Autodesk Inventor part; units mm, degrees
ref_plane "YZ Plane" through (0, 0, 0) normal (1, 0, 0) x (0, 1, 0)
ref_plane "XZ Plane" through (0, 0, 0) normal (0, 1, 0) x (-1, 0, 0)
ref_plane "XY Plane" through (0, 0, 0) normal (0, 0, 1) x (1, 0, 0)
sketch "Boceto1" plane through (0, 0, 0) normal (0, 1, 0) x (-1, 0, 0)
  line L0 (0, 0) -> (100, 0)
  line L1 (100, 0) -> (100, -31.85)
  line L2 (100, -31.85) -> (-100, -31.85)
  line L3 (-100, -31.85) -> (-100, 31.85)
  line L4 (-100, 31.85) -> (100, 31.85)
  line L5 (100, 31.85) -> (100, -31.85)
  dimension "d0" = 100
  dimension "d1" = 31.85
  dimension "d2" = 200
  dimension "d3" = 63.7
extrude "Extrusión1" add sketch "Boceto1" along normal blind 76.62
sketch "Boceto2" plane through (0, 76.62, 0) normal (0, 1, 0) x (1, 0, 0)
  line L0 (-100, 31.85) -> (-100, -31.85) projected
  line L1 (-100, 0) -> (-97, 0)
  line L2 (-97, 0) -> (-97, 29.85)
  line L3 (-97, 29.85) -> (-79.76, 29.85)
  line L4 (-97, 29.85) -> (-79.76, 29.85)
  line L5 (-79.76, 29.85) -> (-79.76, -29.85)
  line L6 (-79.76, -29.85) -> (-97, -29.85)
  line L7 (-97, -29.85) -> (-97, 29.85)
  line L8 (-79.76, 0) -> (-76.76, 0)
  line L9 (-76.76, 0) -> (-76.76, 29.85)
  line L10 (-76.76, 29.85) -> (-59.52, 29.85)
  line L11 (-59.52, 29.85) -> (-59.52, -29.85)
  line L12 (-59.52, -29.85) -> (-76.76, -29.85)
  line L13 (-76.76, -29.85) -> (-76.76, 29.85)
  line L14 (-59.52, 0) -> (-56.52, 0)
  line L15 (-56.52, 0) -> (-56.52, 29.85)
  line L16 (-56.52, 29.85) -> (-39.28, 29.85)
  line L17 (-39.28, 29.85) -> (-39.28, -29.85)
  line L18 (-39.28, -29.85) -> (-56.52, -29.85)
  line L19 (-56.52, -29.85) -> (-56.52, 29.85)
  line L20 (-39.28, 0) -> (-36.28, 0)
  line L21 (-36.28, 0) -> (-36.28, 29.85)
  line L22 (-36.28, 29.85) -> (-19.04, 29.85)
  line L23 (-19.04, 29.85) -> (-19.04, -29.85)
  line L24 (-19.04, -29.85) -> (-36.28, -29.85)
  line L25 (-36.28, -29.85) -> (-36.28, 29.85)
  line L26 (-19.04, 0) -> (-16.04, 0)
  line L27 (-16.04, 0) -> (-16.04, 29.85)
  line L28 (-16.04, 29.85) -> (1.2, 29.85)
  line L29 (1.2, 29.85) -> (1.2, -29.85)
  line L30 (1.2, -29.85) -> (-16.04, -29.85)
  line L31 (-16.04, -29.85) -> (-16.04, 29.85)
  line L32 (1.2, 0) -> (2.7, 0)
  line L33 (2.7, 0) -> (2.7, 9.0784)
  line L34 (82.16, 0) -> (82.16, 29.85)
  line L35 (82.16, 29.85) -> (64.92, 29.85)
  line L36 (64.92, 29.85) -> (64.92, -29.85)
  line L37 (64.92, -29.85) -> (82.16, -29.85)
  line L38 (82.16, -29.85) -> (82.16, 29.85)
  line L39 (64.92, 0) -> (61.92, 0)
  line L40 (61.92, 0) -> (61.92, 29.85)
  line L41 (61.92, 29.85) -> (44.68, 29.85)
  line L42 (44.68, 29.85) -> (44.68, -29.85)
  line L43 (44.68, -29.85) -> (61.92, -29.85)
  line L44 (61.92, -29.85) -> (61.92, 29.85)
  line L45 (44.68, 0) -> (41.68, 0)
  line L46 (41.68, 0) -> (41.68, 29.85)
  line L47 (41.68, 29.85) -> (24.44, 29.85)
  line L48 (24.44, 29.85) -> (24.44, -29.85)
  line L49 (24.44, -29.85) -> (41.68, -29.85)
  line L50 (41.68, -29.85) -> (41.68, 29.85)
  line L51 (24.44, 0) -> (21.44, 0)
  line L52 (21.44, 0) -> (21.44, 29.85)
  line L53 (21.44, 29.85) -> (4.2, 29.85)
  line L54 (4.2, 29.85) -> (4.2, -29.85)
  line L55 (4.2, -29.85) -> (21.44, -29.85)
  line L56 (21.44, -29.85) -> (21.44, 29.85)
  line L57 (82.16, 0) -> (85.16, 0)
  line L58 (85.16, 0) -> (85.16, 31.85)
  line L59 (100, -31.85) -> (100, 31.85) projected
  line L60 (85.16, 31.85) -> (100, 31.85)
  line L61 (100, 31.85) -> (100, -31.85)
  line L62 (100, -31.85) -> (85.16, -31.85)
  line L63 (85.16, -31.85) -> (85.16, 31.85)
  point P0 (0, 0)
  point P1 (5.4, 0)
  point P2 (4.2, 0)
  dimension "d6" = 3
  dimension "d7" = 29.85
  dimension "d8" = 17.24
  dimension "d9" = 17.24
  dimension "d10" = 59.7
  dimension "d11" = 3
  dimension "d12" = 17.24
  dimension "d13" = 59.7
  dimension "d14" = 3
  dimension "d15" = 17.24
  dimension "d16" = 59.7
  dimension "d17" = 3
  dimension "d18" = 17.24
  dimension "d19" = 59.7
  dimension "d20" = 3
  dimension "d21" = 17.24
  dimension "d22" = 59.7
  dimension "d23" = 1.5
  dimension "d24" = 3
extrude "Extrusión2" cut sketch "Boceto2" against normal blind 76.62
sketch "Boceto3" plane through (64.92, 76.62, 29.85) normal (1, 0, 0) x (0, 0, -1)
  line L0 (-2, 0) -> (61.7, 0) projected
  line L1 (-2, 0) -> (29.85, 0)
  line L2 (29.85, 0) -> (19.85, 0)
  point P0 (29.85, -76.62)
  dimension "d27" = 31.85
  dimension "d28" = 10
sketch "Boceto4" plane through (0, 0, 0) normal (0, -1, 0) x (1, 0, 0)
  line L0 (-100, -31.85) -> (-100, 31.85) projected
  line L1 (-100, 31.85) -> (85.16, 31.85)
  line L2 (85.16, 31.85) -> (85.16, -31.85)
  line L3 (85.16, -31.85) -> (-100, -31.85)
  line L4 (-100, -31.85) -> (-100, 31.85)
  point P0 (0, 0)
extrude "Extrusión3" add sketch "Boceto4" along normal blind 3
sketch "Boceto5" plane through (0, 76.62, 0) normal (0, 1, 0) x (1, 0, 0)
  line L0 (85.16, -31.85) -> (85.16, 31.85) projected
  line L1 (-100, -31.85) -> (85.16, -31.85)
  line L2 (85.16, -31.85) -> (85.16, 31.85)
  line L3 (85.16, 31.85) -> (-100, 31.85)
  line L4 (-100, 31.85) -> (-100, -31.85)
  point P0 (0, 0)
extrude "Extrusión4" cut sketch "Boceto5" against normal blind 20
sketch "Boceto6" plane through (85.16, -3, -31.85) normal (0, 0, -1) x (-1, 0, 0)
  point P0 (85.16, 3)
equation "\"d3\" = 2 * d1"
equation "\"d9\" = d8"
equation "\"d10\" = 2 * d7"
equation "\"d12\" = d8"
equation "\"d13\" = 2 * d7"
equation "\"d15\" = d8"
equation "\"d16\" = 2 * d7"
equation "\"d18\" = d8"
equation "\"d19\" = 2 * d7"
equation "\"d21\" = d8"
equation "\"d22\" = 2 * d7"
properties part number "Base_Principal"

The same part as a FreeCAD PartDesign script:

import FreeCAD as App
import Part
import Sketcher
from FreeCAD import Vector
Q = App.Units.Quantity

doc = App.newDocument("Part")
body = doc.addObject("PartDesign::Body", "Body")

# Sketch on XZ plane
sketch1 = doc.addObject("Sketcher::SketchObject", "Sketch")
body.addObject(sketch1)
sketch1.AttachmentSupport = (doc.XZ_Plane, [""])
sketch1.MapMode = "FlatFace"
sketch1.addGeometry(Part.LineSegment(Vector(-100, -32, 0), Vector(-100, 32, 0)), False)
sketch1.addGeometry(Part.LineSegment(Vector(-100, 32, 0), Vector(100, 32, 0)), False)
sketch1.addGeometry(Part.LineSegment(Vector(100, 32, 0), Vector(100, -32, 0)), False)
sketch1.addGeometry(Part.LineSegment(Vector(100, -32, 0), Vector(-100, -32, 0)), False)
sketch1.addConstraint(Sketcher.Constraint("Coincident", 0, 2, 1, 1))
sketch1.addConstraint(Sketcher.Constraint("Coincident", 1, 2, 2, 1))
sketch1.addConstraint(Sketcher.Constraint("Coincident", 2, 2, 3, 1))
sketch1.addConstraint(Sketcher.Constraint("Coincident", 3, 2, 0, 1))
sketch1.addConstraint(Sketcher.Constraint("Vertical", 0))
sketch1.addConstraint(Sketcher.Constraint("Horizontal", 1))
sketch1.addConstraint(Sketcher.Constraint("Vertical", 2))
sketch1.addConstraint(Sketcher.Constraint("Horizontal", 3))
sketch1.addConstraint(Sketcher.Constraint("Symmetric", 0, 2, 2, 2, -1, 1))
sketch1.addConstraint(Sketcher.Constraint("DistanceX", 1, 1, 1, 2, Q("200 mm")))
sketch1.addConstraint(Sketcher.Constraint("DistanceY", 0, 1, 0, 2, Q("63.7 mm")))
pad1 = doc.addObject("PartDesign::Pad", "Pad")
body.addObject(pad1)
pad1.Profile = sketch1
pad1.Length = 76.62
pad1.Reversed = True

# Sketch on XZ plane
sketch2 = doc.addObject("Sketcher::SketchObject", "Sketch001")
body.addObject(sketch2)
sketch2.AttachmentSupport = (doc.XZ_Plane, [""])
sketch2.MapMode = "FlatFace"
sketch2.AttachmentOffset = App.Placement(Vector(0, 0, -76.62), App.Rotation())
sketch2.addGeometry(Part.LineSegment(Vector(-16, -30, 0), Vector(-16, 30, 0)), False)
sketch2.addGeometry(Part.LineSegment(Vector(-16, 30, 0), Vector(1, 30, 0)), False)
sketch2.addGeometry(Part.LineSegment(Vector(1, 30, 0), Vector(1, -30, 0)), False)
sketch2.addGeometry(Part.LineSegment(Vector(1, -30, 0), Vector(-16, -30, 0)), False)
sketch2.addGeometry(Part.LineSegment(Vector(-36, -30, 0), Vector(-36, 30, 0)), False)
sketch2.addGeometry(Part.LineSegment(Vector(-36, 30, 0), Vector(-19, 30, 0)), False)
sketch2.addGeometry(Part.LineSegment(Vector(-19, 30, 0), Vector(-19, -30, 0)), False)
sketch2.addGeometry(Part.LineSegment(Vector(-19, -30, 0), Vector(-36, -30, 0)), False)
sketch2.addGeometry(Part.LineSegment(Vector(-57, -30, 0), Vector(-57, 30, 0)), False)
sketch2.addGeometry(Part.LineSegment(Vector(-57, 30, 0), Vector(-39, 30, 0)), False)
sketch2.addGeometry(Part.LineSegment(Vector(-39, 30, 0), Vector(-39, -30, 0)), False)
sketch2.addGeometry(Part.LineSegment(Vector(-39, -30, 0), Vector(-57, -30, 0)), False)
sketch2.addGeometry(Part.LineSegment(Vector(-77, -30, 0), Vector(-77, 30, 0)), False)
sketch2.addGeometry(Part.LineSegment(Vector(-77, 30, 0), Vector(-60, 30, 0)), False)
sketch2.addGeometry(Part.LineSegment(Vector(-60, 30, 0), Vector(-60, -30, 0)), False)
sketch2.addGeometry(Part.LineSegment(Vector(-60, -30, 0), Vector(-77, -30, 0)), False)
sketch2.addGeometry(Part.LineSegment(Vector(-97, -30, 0), Vector(-97, 30, 0)), False)
sketch2.addGeometry(Part.LineSegment(Vector(-97, 30, 0), Vector(-80, 30, 0)), False)
sketch2.addGeometry(Part.LineSegment(Vector(-80, 30, 0), Vector(-80, -30, 0)), False)
sketch2.addGeometry(Part.LineSegment(Vector(-80, -30, 0), Vector(-97, -30, 0)), False)
sketch2.addGeometry(Part.LineSegment(Vector(82, 30, 0), Vector(82, -30, 0)), False)
sketch2.addGeometry(Part.LineSegment(Vector(82, -30, 0), Vector(65, -30, 0)), False)
sketch2.addGeometry(Part.LineSegment(Vector(65, -30, 0), Vector(65, 30, 0)), False)
sketch2.addGeometry(Part.LineSegment(Vector(65, 30, 0), Vector(82, 30, 0)), False)
sketch2.addGeometry(Part.LineSegment(Vector(21, 30, 0), Vector(21, -30, 0)), False)
sketch2.addGeometry(Part.LineSegment(Vector(21, -30, 0), Vector(4, -30, 0)), False)
sketch2.addGeometry(Part.LineSegment(Vector(4, -30, 0), Vector(4, 30, 0)), False)
sketch2.addGeometry(Part.LineSegment(Vector(4, 30, 0), Vector(21, 30, 0)), False)
sketch2.addGeometry(Part.LineSegment(Vector(42, 30, 0), Vector(42, -30, 0)), False)
sketch2.addGeometry(Part.LineSegment(Vector(42, -30, 0), Vector(24, -30, 0)), False)
sketch2.addGeometry(Part.LineSegment(Vector(24, -30, 0), Vector(24, 30, 0)), False)
sketch2.addGeometry(Part.LineSegment(Vector(24, 30, 0), Vector(42, 30, 0)), False)
sketch2.addGeometry(Part.LineSegment(Vector(62, 30, 0), Vector(62, -30, 0)), False)
sketch2.addGeometry(Part.LineSegment(Vector(62, -30, 0), Vector(45, -30, 0)), False)
sketch2.addGeometry(Part.LineSegment(Vector(45, -30, 0), Vector(45, 30, 0)), False)
sketch2.addGeometry(Part.LineSegment(Vector(45, 30, 0), Vector(62, 30, 0)), False)
sketch2.addGeometry(Part.LineSegment(Vector(85, -32, 0), Vector(85, 32, 0)), False)
sketch2.addGeometry(Part.LineSegment(Vector(85, 32, 0), Vector(100, 32, 0)), False)
sketch2.addGeometry(Part.LineSegment(Vector(100, 32, 0), Vector(100, -32, 0)), False)
sketch2.addGeometry(Part.LineSegment(Vector(100, -32, 0), Vector(85, -32, 0)), False)
sketch2.addConstraint(Sketcher.Constraint("Coincident", 0, 2, 1, 1))
sketch2.addConstraint(Sketcher.Constraint("Coincident", 1, 2, 2, 1))
sketch2.addConstraint(Sketcher.Constraint("Coincident", 2, 2, 3, 1))
sketch2.addConstraint(Sketcher.Constraint("Coincident", 3, 2, 0, 1))
sketch2.addConstraint(Sketcher.Constraint("Coincident", 4, 2, 5, 1))
sketch2.addConstraint(Sketcher.Constraint("Coincident", 5, 2, 6, 1))
sketch2.addConstraint(Sketcher.Constraint("Coincident", 6, 2, 7, 1))
sketch2.addConstraint(Sketcher.Constraint("Coincident", 7, 2, 4, 1))
sketch2.addConstraint(Sketcher.Constraint("Coincident", 8, 2, 9, 1))
sketch2.addConstraint(Sketcher.Constraint("Coincident", 9, 2, 10, 1))
sketch2.addConstraint(Sketcher.Constraint("Coincident", 10, 2, 11, 1))
sketch2.addConstraint(Sketcher.Constraint("Coincident", 11, 2, 8, 1))
sketch2.addConstraint(Sketcher.Constraint("Coincident", 12, 2, 13, 1))
sketch2.addConstraint(Sketcher.Constraint("Coincident", 13, 2, 14, 1))
sketch2.addConstraint(Sketcher.Constraint("Coincident", 14, 2, 15, 1))
sketch2.addConstraint(Sketcher.Constraint("Coincident", 15, 2, 12, 1))
sketch2.addConstraint(Sketcher.Constraint("Coincident", 16, 2, 17, 1))
sketch2.addConstraint(Sketcher.Constraint("Coincident", 17, 2, 18, 1))
sketch2.addConstraint(Sketcher.Constraint("Coincident", 18, 2, 19, 1))
sketch2.addConstraint(Sketcher.Constraint("Coincident", 19, 2, 16, 1))
sketch2.addConstraint(Sketcher.Constraint("Coincident", 20, 2, 21, 1))
sketch2.addConstraint(Sketcher.Constraint("Coincident", 21, 2, 22, 1))
sketch2.addConstraint(Sketcher.Constraint("Coincident", 22, 2, 23, 1))
sketch2.addConstraint(Sketcher.Constraint("Coincident", 23, 2, 20, 1))
sketch2.addConstraint(Sketcher.Constraint("Coincident", 24, 2, 25, 1))
sketch2.addConstraint(Sketcher.Constraint("Coincident", 25, 2, 26, 1))
sketch2.addConstraint(Sketcher.Constraint("Coincident", 26, 2, 27, 1))
sketch2.addConstraint(Sketcher.Constraint("Coincident", 27, 2, 24, 1))
sketch2.addConstraint(Sketcher.Constraint("Coincident", 28, 2, 29, 1))
sketch2.addConstraint(Sketcher.Constraint("Coincident", 29, 2, 30, 1))
sketch2.addConstraint(Sketcher.Constraint("Coincident", 30, 2, 31, 1))
sketch2.addConstraint(Sketcher.Constraint("Coincident", 31, 2, 28, 1))
sketch2.addConstraint(Sketcher.Constraint("Coincident", 32, 2, 33, 1))
sketch2.addConstraint(Sketcher.Constraint("Coincident", 33, 2, 34, 1))
sketch2.addConstraint(Sketcher.Constraint("Coincident", 34, 2, 35, 1))
sketch2.addConstraint(Sketcher.Constraint("Coincident", 35, 2, 32, 1))
sketch2.addConstraint(Sketcher.Constraint("Coincident", 36, 2, 37, 1))
sketch2.addConstraint(Sketcher.Constraint("Coincident", 37, 2, 38, 1))
sketch2.addConstraint(Sketcher.Constraint("Coincident", 38, 2, 39, 1))
sketch2.addConstraint(Sketcher.Constraint("Coincident", 39, 2, 36, 1))
sketch2.addConstraint(Sketcher.Constraint("Vertical", 0))
sketch2.addConstraint(Sketcher.Constraint("Horizontal", 1))
sketch2.addConstraint(Sketcher.Constraint("Vertical", 2))
sketch2.addConstraint(Sketcher.Constraint("Horizontal", 3))
sketch2.addConstraint(Sketcher.Constraint("Vertical", 4))
sketch2.addConstraint(Sketcher.Constraint("Horizontal", 5))
sketch2.addConstraint(Sketcher.Constraint("Vertical", 6))
sketch2.addConstraint(Sketcher.Constraint("Horizontal", 7))
sketch2.addConstraint(Sketcher.Constraint("Vertical", 8))
sketch2.addConstraint(Sketcher.Constraint("Horizontal", 9))
sketch2.addConstraint(Sketcher.Constraint("Vertical", 10))
sketch2.addConstraint(Sketcher.Constraint("Horizontal", 11))
sketch2.addConstraint(Sketcher.Constraint("Vertical", 12))
sketch2.addConstraint(Sketcher.Constraint("Horizontal", 13))
sketch2.addConstraint(Sketcher.Constraint("Vertical", 14))
sketch2.addConstraint(Sketcher.Constraint("Horizontal", 15))
sketch2.addConstraint(Sketcher.Constraint("Vertical", 16))
sketch2.addConstraint(Sketcher.Constraint("Horizontal", 17))
sketch2.addConstraint(Sketcher.Constraint("Vertical", 18))
sketch2.addConstraint(Sketcher.Constraint("Horizontal", 19))
sketch2.addConstraint(Sketcher.Constraint("Vertical", 20))
sketch2.addConstraint(Sketcher.Constraint("Horizontal", 21))
sketch2.addConstraint(Sketcher.Constraint("Vertical", 22))
sketch2.addConstraint(Sketcher.Constraint("Horizontal", 23))
sketch2.addConstraint(Sketcher.Constraint("Vertical", 24))
sketch2.addConstraint(Sketcher.Constraint("Horizontal", 25))
sketch2.addConstraint(Sketcher.Constraint("Vertical", 26))
sketch2.addConstraint(Sketcher.Constraint("Horizontal", 27))
sketch2.addConstraint(Sketcher.Constraint("Vertical", 28))
sketch2.addConstraint(Sketcher.Constraint("Horizontal", 29))
sketch2.addConstraint(Sketcher.Constraint("Vertical", 30))
sketch2.addConstraint(Sketcher.Constraint("Horizontal", 31))
sketch2.addConstraint(Sketcher.Constraint("Vertical", 32))
sketch2.addConstraint(Sketcher.Constraint("Horizontal", 33))
sketch2.addConstraint(Sketcher.Constraint("Vertical", 34))
sketch2.addConstraint(Sketcher.Constraint("Horizontal", 35))
sketch2.addConstraint(Sketcher.Constraint("Vertical", 36))
sketch2.addConstraint(Sketcher.Constraint("Horizontal", 37))
sketch2.addConstraint(Sketcher.Constraint("Vertical", 38))
sketch2.addConstraint(Sketcher.Constraint("Horizontal", 39))
sketch2.addConstraint(Sketcher.Constraint("Horizontal", 1, 2, 4, 2))
sketch2.addConstraint(Sketcher.Constraint("Horizontal", 3, 2, 6, 2))
sketch2.addConstraint(Sketcher.Constraint("Horizontal", 5, 2, 8, 2))
sketch2.addConstraint(Sketcher.Constraint("Horizontal", 7, 2, 10, 2))
sketch2.addConstraint(Sketcher.Constraint("Horizontal", 9, 2, 12, 2))
sketch2.addConstraint(Sketcher.Constraint("Horizontal", 11, 2, 14, 2))
sketch2.addConstraint(Sketcher.Constraint("Horizontal", 13, 2, 16, 2))
sketch2.addConstraint(Sketcher.Constraint("Horizontal", 15, 2, 18, 2))
sketch2.addConstraint(Sketcher.Constraint("Horizontal", 19, 2, 20, 2))
sketch2.addConstraint(Sketcher.Constraint("Horizontal", 17, 2, 22, 2))
sketch2.addConstraint(Sketcher.Constraint("Horizontal", 21, 2, 24, 2))
sketch2.addConstraint(Sketcher.Constraint("Horizontal", 23, 2, 26, 2))
sketch2.addConstraint(Sketcher.Constraint("Horizontal", 25, 2, 28, 2))
sketch2.addConstraint(Sketcher.Constraint("Horizontal", 27, 2, 30, 2))
sketch2.addConstraint(Sketcher.Constraint("Horizontal", 29, 2, 32, 2))
sketch2.addConstraint(Sketcher.Constraint("Horizontal", 31, 2, 34, 2))
sketch2.addConstraint(Sketcher.Constraint("Equal", 3, 5))
sketch2.addConstraint(Sketcher.Constraint("Equal", 7, 9))
sketch2.addConstraint(Sketcher.Constraint("Equal", 11, 13))
sketch2.addConstraint(Sketcher.Constraint("Equal", 15, 17))
sketch2.addConstraint(Sketcher.Constraint("Equal", 19, 21))
sketch2.addConstraint(Sketcher.Constraint("Equal", 23, 25))
sketch2.addConstraint(Sketcher.Constraint("Equal", 27, 29))
sketch2.addConstraint(Sketcher.Constraint("Equal", 31, 33))
sketch2.addConstraint(Sketcher.Constraint("DistanceY", 0, 1, 0, 2, Q("59.7 mm")))
sketch2.addConstraint(Sketcher.Constraint("DistanceX", 5, 2, 0, 2, Q("3 mm")))
sketch2.addConstraint(Sketcher.Constraint("DistanceX", 9, 2, 4, 2, Q("3 mm")))
sketch2.addConstraint(Sketcher.Constraint("DistanceX", 13, 2, 8, 2, Q("3 mm")))
sketch2.addConstraint(Sketcher.Constraint("DistanceX", 17, 2, 12, 2, Q("3 mm")))
sketch2.addConstraint(Sketcher.Constraint("DistanceX", 2, 2, 25, 2, Q("3 mm")))
sketch2.addConstraint(Sketcher.Constraint("DistanceX", 24, 2, 29, 2, Q("3 mm")))
sketch2.addConstraint(Sketcher.Constraint("DistanceX", 32, 2, 21, 2, Q("3 mm")))
sketch2.addConstraint(Sketcher.Constraint("DistanceX", 28, 2, 33, 2, Q("3 mm")))
sketch2.addConstraint(Sketcher.Constraint("DistanceX", 23, 2, 36, 2, Q("3 mm")))
sketch2.addConstraint(Sketcher.Constraint("DistanceX", 1, 1, 1, 2, Q("17.24 mm")))
sketch2.addConstraint(Sketcher.Constraint("DistanceY", -1, 1, 0, 2, Q("29.85 mm")))
sketch2.addConstraint(Sketcher.Constraint("DistanceY", 36, 1, 36, 2, Q("63.7 mm")))
sketch2.addConstraint(Sketcher.Constraint("DistanceX", 16, 2, -1, 1, Q("97 mm")))
sketch2.addConstraint(Sketcher.Constraint("DistanceX", -1, 1, 37, 2, Q("100 mm")))
sketch2.addConstraint(Sketcher.Constraint("DistanceY", 23, 2, 36, 2, Q("2 mm")))
pocket1 = doc.addObject("PartDesign::Pocket", "Pocket")
body.addObject(pocket1)
pocket1.Profile = sketch2
pocket1.Length = 76.62
pocket1.Reversed = True

# Sketch on XZ plane
sketch3 = doc.addObject("Sketcher::SketchObject", "Sketch002")
body.addObject(sketch3)
sketch3.AttachmentSupport = (doc.XZ_Plane, [""])
sketch3.MapMode = "FlatFace"
sketch3.addGeometry(Part.LineSegment(Vector(-100, 32, 0), Vector(-100, -32, 0)), False)
sketch3.addGeometry(Part.LineSegment(Vector(-100, -32, 0), Vector(85, -32, 0)), False)
sketch3.addGeometry(Part.LineSegment(Vector(85, -32, 0), Vector(85, 32, 0)), False)
sketch3.addGeometry(Part.LineSegment(Vector(85, 32, 0), Vector(-100, 32, 0)), False)
sketch3.addConstraint(Sketcher.Constraint("Coincident", 0, 2, 1, 1))
sketch3.addConstraint(Sketcher.Constraint("Coincident", 1, 2, 2, 1))
sketch3.addConstraint(Sketcher.Constraint("Coincident", 2, 2, 3, 1))
sketch3.addConstraint(Sketcher.Constraint("Coincident", 3, 2, 0, 1))
sketch3.addConstraint(Sketcher.Constraint("Vertical", 0))
sketch3.addConstraint(Sketcher.Constraint("Horizontal", 1))
sketch3.addConstraint(Sketcher.Constraint("Vertical", 2))
sketch3.addConstraint(Sketcher.Constraint("Horizontal", 3))
sketch3.addConstraint(Sketcher.Constraint("DistanceY", 0, 2, 0, 1, Q("63.7 mm")))
sketch3.addConstraint(Sketcher.Constraint("DistanceX", 0, 2, -1, 1, Q("100 mm")))
sketch3.addConstraint(Sketcher.Constraint("DistanceX", 1, 1, 1, 2, Q("185.16 mm")))
sketch3.addConstraint(Sketcher.Constraint("DistanceY", 0, 2, -1, 1, Q("31.85 mm")))
pad2 = doc.addObject("PartDesign::Pad", "Pad001")
body.addObject(pad2)
pad2.Profile = sketch3
pad2.Length = 3

# Sketch on XZ plane
sketch4 = doc.addObject("Sketcher::SketchObject", "Sketch003")
body.addObject(sketch4)
sketch4.AttachmentSupport = (doc.XZ_Plane, [""])
sketch4.MapMode = "FlatFace"
sketch4.AttachmentOffset = App.Placement(Vector(0, 0, -76.62), App.Rotation())
sketch4.addGeometry(Part.LineSegment(Vector(-100, 32, 0), Vector(85, 32, 0)), False)
sketch4.addGeometry(Part.LineSegment(Vector(85, 32, 0), Vector(85, -32, 0)), False)
sketch4.addGeometry(Part.LineSegment(Vector(85, -32, 0), Vector(-100, -32, 0)), False)
sketch4.addGeometry(Part.LineSegment(Vector(-100, -32, 0), Vector(-100, 32, 0)), False)
sketch4.addConstraint(Sketcher.Constraint("Coincident", 0, 2, 1, 1))
sketch4.addConstraint(Sketcher.Constraint("Coincident", 1, 2, 2, 1))
sketch4.addConstraint(Sketcher.Constraint("Coincident", 2, 2, 3, 1))
sketch4.addConstraint(Sketcher.Constraint("Coincident", 3, 2, 0, 1))
sketch4.addConstraint(Sketcher.Constraint("Horizontal", 0))
sketch4.addConstraint(Sketcher.Constraint("Vertical", 1))
sketch4.addConstraint(Sketcher.Constraint("Horizontal", 2))
sketch4.addConstraint(Sketcher.Constraint("Vertical", 3))
sketch4.addConstraint(Sketcher.Constraint("DistanceY", 1, 2, 1, 1, Q("63.7 mm")))
sketch4.addConstraint(Sketcher.Constraint("DistanceX", 2, 2, -1, 1, Q("100 mm")))
sketch4.addConstraint(Sketcher.Constraint("DistanceX", 0, 1, 0, 2, Q("185.16 mm")))
sketch4.addConstraint(Sketcher.Constraint("DistanceY", -1, 1, 0, 2, Q("31.85 mm")))
pocket2 = doc.addObject("PartDesign::Pocket", "Pocket001")
body.addObject(pocket2)
pocket2.Profile = sketch4
pocket2.Length = 20
pocket2.Reversed = True

doc.recompute()
